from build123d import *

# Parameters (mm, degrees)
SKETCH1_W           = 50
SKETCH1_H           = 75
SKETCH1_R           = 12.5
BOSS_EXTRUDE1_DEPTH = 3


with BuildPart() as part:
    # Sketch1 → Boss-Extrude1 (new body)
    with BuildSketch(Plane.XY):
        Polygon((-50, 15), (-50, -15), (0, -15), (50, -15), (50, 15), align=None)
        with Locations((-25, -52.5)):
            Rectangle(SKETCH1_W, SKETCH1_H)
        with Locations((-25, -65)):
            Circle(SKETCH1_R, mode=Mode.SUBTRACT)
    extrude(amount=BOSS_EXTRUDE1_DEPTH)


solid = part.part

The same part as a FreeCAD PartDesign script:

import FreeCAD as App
import Part
import Sketcher

V = App.Vector

doc = App.newDocument("Part")
params = doc.addObject("Spreadsheet::Sheet", "Params")
for row, (alias, value) in enumerate([
    ("sketch1_diameter", "25 mm"),
    ("sketch1_width", "50 mm"),
    ("sketch1_height", "105 mm"),
    ("sketch1_height2", "75 mm"),
    ("pad1_length", "3 mm"),
], start=1):
    params.set(f"A{row}", alias)
    params.set(f"B{row}", "=" + value)
    params.setAlias(f"B{row}", alias)

body = doc.addObject("PartDesign::Body", "Body")

sketch1 = body.newObject("Sketcher::SketchObject", "Sketch")
sketch1.AttachmentSupport = (doc.getObject("XY_Plane"), [""])
sketch1.MapMode = "FlatFace"
sketch1.addGeometry(Part.LineSegment(V(-50, 15, 0), V(-50, -90, 0)), False)
sketch1.addGeometry(Part.LineSegment(V(-50, -90, 0), V(0, -90, 0)), False)
sketch1.addGeometry(Part.LineSegment(V(0, -90, 0), V(0, -15, 0)), False)
sketch1.addGeometry(Part.LineSegment(V(0, -15, 0), V(50, -15, 0)), False)
sketch1.addGeometry(Part.LineSegment(V(50, -15, 0), V(50, 15, 0)), False)
sketch1.addGeometry(Part.LineSegment(V(50, 15, 0), V(-50, 15, 0)), False)
sketch1.addGeometry(Part.Circle(V(-25, -65, 0), V(0, 0, 1), 12), False)
sketch1.addConstraint(Sketcher.Constraint("Coincident", 0, 2, 1, 1))
sketch1.addConstraint(Sketcher.Constraint("Coincident", 1, 2, 2, 1))
sketch1.addConstraint(Sketcher.Constraint("Coincident", 2, 2, 3, 1))
sketch1.addConstraint(Sketcher.Constraint("Coincident", 3, 2, 4, 1))
sketch1.addConstraint(Sketcher.Constraint("Coincident", 4, 2, 5, 1))
sketch1.addConstraint(Sketcher.Constraint("Coincident", 5, 2, 0, 1))
sketch1.addConstraint(Sketcher.Constraint("Vertical", 0))
sketch1.addConstraint(Sketcher.Constraint("Horizontal", 1))
sketch1.addConstraint(Sketcher.Constraint("Vertical", 2))
sketch1.addConstraint(Sketcher.Constraint("Horizontal", 3))
sketch1.addConstraint(Sketcher.Constraint("Vertical", 4))
sketch1.addConstraint(Sketcher.Constraint("Horizontal", 5))
sketch1.addConstraint(Sketcher.Constraint("Symmetric", 3, 2, 5, 2, -1, 1))
sketch1.addConstraint(Sketcher.Constraint("PointOnObject", 1, 2, -2))
sketch1.addConstraint(Sketcher.Constraint("Diameter", 6, 25.0))
sketch1.addConstraint(Sketcher.Constraint("DistanceX", 1, 1, 1, 2, 50.0))
sketch1.addConstraint(Sketcher.Constraint("DistanceY", 0, 2, 0, 1, 105.0))
sketch1.addConstraint(Sketcher.Constraint("DistanceY", 2, 1, 2, 2, 75.0))
sketch1.addConstraint(Sketcher.Constraint("DistanceX", 6, 3, -1, 1, 25.0))
sketch1.addConstraint(Sketcher.Constraint("DistanceY", 6, 3, -1, 1, 65.0))
sketch1.setExpression("Constraints[14]", "Params.sketch1_diameter")
sketch1.setExpression("Constraints[15]", "Params.sketch1_width")
sketch1.setExpression("Constraints[16]", "Params.sketch1_height")
sketch1.setExpression("Constraints[17]", "Params.sketch1_height2")
pad1 = body.newObject("PartDesign::Pad", "Pad")
pad1.Profile = sketch1
pad1.setExpression("Length", "Params.pad1_length")

doc.recompute()
